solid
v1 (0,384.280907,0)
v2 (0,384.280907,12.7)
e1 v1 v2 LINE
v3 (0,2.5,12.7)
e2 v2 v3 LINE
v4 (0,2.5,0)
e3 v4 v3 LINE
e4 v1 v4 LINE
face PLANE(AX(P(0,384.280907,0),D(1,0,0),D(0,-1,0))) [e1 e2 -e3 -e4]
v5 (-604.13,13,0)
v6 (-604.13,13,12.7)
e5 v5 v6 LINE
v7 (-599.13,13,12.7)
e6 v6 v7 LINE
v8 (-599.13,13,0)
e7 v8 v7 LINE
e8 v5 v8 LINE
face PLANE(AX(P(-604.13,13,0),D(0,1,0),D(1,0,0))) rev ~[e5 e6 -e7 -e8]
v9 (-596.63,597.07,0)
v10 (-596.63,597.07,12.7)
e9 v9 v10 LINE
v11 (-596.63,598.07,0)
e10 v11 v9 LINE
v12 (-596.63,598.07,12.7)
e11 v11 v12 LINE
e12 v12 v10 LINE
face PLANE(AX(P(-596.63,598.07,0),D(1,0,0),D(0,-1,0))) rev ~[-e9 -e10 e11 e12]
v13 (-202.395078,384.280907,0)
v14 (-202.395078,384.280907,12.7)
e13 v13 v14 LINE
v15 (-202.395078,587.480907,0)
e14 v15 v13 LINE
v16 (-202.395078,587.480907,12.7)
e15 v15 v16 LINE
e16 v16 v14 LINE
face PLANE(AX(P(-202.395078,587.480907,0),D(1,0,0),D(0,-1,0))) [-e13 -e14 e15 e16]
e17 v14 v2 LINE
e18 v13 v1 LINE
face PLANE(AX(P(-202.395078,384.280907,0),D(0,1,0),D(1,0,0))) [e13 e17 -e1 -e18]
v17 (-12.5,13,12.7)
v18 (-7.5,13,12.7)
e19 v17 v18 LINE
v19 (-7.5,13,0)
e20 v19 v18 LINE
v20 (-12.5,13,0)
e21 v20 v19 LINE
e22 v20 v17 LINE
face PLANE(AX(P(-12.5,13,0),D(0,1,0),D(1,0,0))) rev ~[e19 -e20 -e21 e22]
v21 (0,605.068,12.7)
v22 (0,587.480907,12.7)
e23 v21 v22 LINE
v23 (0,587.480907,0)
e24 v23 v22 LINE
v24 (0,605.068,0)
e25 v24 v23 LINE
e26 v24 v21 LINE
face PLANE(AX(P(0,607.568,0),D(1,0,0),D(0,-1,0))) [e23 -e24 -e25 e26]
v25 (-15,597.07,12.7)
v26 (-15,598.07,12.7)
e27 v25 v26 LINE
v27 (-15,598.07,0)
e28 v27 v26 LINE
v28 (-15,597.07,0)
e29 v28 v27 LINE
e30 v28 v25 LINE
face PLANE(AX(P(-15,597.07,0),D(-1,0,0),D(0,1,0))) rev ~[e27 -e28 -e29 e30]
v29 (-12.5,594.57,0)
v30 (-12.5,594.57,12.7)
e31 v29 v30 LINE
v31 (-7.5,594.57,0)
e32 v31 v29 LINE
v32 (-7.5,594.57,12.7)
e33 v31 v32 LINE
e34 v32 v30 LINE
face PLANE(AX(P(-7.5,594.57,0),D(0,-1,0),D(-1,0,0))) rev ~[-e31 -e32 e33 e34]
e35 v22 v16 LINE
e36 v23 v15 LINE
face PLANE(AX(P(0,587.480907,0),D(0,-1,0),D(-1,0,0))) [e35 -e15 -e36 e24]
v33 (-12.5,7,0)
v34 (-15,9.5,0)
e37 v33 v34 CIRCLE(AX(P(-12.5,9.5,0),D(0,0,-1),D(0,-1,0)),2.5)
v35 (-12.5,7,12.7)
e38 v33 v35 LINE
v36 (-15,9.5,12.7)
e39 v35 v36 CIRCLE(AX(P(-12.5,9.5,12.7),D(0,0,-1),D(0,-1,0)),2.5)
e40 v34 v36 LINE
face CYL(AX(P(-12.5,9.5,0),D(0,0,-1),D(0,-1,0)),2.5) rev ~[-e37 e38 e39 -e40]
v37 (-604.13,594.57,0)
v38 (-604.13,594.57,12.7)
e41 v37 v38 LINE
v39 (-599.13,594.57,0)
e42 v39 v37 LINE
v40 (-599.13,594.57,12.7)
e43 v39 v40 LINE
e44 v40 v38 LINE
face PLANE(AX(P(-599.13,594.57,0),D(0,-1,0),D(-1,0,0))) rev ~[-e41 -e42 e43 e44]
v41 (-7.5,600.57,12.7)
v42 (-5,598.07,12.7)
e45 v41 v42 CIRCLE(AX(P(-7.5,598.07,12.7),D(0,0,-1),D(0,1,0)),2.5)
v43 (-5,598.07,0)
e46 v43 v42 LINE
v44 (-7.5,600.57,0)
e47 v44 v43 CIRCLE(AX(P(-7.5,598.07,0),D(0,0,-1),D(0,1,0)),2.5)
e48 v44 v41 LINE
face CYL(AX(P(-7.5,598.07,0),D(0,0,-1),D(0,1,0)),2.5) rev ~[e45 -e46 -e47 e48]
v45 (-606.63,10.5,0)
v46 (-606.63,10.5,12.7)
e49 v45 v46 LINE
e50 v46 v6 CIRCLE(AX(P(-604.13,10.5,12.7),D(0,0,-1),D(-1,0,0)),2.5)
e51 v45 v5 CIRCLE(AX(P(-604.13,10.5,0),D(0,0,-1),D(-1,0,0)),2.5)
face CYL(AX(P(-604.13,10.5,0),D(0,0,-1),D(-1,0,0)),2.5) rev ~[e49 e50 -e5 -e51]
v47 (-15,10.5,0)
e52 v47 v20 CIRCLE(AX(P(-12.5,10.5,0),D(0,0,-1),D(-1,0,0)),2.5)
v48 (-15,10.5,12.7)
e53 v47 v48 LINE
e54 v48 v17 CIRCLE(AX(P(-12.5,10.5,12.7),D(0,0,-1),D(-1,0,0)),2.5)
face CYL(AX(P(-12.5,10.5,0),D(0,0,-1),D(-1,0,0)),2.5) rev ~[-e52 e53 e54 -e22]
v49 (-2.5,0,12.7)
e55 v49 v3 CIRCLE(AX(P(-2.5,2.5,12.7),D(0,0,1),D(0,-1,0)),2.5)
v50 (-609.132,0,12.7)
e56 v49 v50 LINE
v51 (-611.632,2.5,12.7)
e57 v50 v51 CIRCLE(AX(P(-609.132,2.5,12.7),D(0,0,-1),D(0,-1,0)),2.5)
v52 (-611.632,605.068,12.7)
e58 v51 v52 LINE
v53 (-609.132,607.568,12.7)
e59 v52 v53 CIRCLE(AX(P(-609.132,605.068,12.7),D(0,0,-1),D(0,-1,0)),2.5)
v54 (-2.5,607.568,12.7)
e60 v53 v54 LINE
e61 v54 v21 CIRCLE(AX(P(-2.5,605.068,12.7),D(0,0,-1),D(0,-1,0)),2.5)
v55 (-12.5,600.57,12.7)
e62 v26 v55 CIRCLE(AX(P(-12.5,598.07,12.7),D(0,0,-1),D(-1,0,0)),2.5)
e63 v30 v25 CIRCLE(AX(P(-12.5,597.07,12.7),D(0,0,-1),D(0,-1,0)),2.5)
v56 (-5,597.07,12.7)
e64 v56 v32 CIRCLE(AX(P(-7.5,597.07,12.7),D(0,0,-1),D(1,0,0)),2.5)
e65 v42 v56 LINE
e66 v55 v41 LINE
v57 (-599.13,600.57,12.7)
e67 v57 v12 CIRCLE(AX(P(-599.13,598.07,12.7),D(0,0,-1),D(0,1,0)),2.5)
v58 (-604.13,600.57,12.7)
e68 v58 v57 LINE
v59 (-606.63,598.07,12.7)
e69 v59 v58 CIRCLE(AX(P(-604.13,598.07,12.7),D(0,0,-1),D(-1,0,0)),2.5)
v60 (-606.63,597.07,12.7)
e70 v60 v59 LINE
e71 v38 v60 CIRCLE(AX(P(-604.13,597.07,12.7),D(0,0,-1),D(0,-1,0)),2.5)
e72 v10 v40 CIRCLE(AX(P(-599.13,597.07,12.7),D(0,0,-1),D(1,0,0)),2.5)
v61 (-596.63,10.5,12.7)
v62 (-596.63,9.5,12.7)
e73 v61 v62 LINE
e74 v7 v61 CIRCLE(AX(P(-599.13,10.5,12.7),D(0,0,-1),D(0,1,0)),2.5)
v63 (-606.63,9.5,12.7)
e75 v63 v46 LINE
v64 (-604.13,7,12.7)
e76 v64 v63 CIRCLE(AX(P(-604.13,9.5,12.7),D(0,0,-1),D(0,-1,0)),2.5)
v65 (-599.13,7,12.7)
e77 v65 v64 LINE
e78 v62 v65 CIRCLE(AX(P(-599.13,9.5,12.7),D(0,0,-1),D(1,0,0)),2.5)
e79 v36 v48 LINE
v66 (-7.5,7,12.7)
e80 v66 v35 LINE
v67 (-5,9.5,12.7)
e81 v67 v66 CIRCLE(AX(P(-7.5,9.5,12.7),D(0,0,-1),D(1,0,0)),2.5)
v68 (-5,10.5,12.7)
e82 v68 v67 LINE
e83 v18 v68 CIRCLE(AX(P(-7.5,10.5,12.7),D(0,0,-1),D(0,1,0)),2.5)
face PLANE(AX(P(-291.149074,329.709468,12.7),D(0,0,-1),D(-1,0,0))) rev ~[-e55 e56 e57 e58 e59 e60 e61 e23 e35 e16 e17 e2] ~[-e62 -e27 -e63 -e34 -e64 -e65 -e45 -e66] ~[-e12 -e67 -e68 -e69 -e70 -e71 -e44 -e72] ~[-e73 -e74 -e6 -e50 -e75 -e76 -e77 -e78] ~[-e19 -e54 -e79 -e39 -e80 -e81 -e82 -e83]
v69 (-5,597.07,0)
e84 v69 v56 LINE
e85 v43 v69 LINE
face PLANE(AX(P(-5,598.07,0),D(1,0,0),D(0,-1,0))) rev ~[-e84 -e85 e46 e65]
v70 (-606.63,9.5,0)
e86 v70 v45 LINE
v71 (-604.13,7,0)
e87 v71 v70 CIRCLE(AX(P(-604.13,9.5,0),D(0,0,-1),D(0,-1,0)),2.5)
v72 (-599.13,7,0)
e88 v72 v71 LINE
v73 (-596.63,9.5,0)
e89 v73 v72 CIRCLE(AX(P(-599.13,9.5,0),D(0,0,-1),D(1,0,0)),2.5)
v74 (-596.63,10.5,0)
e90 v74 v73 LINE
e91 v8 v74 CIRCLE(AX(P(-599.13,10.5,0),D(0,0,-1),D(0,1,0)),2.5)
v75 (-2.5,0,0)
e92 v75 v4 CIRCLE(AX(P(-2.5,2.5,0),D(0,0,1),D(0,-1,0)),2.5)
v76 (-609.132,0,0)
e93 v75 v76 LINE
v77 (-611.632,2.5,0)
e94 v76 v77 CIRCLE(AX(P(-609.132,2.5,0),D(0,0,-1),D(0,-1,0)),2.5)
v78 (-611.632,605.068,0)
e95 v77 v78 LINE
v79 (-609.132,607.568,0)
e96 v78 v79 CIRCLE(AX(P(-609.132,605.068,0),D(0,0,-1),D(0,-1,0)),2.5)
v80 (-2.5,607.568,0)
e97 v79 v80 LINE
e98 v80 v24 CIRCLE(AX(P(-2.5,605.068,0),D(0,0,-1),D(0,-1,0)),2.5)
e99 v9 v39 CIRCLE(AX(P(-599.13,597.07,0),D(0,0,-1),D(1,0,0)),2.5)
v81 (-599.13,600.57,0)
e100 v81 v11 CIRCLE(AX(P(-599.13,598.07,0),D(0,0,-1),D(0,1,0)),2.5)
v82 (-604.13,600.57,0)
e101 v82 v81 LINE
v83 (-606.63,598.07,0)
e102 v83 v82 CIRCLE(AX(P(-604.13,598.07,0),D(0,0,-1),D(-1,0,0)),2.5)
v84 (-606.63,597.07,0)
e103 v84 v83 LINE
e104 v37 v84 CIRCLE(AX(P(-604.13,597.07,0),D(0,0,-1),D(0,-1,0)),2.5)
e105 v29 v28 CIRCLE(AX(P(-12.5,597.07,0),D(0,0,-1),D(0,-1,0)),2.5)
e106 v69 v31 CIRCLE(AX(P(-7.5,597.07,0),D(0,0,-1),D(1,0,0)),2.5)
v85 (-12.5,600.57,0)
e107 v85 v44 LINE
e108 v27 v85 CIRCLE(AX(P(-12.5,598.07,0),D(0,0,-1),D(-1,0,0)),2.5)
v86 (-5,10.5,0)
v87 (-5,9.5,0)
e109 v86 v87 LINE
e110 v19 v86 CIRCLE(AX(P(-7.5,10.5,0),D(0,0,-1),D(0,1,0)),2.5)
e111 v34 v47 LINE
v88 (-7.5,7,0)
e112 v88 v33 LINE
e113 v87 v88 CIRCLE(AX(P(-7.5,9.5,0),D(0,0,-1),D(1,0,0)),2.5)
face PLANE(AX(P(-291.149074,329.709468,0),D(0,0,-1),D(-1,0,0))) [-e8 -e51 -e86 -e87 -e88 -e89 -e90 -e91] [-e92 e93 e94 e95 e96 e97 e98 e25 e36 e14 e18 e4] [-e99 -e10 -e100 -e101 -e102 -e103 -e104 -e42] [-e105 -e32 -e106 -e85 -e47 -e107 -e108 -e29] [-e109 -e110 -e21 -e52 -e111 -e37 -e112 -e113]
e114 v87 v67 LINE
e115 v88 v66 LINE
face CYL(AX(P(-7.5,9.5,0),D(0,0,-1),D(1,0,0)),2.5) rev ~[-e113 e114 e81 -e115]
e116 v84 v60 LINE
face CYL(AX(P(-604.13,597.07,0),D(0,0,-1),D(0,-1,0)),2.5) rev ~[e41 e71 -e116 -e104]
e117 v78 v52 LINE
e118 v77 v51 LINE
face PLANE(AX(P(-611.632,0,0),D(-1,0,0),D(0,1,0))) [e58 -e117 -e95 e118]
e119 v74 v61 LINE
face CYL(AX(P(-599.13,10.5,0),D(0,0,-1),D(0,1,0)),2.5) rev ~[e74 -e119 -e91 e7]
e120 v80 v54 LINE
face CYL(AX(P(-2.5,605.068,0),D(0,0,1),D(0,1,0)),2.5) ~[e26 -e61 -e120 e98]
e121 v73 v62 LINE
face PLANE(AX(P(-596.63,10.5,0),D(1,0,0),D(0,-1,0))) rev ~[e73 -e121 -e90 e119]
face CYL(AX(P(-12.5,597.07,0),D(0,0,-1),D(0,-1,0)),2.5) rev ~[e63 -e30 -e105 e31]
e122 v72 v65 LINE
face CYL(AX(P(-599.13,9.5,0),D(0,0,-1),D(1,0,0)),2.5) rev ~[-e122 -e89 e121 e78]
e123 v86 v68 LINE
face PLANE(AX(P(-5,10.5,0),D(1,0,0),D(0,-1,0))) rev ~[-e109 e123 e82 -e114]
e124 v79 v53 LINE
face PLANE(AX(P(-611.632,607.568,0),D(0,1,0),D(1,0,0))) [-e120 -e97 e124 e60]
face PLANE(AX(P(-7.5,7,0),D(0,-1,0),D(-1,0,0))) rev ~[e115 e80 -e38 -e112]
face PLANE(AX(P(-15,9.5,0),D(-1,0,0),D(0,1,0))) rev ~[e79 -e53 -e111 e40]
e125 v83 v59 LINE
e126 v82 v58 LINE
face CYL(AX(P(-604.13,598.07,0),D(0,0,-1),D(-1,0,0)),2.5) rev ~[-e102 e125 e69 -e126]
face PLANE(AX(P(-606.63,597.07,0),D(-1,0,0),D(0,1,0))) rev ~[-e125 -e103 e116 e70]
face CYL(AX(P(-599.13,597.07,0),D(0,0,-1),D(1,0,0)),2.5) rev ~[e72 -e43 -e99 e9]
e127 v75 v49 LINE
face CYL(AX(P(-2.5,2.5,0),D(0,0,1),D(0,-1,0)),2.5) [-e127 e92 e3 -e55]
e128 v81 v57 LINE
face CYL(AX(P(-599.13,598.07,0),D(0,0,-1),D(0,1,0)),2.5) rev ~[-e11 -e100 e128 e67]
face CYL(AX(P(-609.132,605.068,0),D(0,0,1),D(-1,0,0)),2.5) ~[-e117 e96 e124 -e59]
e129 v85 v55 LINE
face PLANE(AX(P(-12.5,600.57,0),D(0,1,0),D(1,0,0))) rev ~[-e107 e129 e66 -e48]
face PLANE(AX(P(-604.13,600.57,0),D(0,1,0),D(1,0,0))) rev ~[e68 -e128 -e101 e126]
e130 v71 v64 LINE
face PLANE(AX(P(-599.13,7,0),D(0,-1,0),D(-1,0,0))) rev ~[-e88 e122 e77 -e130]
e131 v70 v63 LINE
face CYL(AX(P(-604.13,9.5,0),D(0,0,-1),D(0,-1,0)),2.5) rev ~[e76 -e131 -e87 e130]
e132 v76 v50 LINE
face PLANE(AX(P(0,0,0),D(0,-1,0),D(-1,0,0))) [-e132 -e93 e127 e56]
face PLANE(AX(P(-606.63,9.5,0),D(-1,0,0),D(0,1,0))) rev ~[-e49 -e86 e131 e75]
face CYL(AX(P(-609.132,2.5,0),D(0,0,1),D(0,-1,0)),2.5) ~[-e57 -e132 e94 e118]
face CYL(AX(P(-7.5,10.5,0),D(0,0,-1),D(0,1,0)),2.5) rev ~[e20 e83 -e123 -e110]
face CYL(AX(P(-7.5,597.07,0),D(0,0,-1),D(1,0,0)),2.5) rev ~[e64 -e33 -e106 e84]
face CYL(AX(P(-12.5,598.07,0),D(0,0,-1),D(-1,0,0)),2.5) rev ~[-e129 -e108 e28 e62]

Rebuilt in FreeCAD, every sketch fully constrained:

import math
import FreeCAD as App
import Part
import Sketcher
Q = App.Units.Quantity


def edges_at(feature, points):
    """Names of the edges that pass closest to the given points."""
    edges = feature.Shape.Edges
    near = lambda p: min(range(len(edges)), key=lambda i: edges[i].distToShape(Part.Vertex(*p))[0])
    return sorted({f"Edge{near(p) + 1}" for p in points})


def add_polygon(sketch, points):
    """Adds a closed chain of lines whose ends are joined by coincident constraints."""
    first, n = sketch.GeometryCount, len(points)
    for a, b in zip(points, points[1:] + points[:1]):
        sketch.addGeometry(Part.LineSegment(App.Vector(*a, 0), App.Vector(*b, 0)), False)
    for i in range(n):
        sketch.addConstraint(Sketcher.Constraint("Coincident", first + i, 2, first + (i + 1) % n, 1))

doc = App.newDocument("Part")
body = doc.addObject("PartDesign::Body", "Body")

# Sketch on XY plane
sketch1 = body.newObject("Sketcher::SketchObject", "Sketch")
sketch1.AttachmentSupport = (doc.getObject("XY_Plane"), [""])
sketch1.MapMode = "FlatFace"
add_polygon(sketch1, [(-611.6, 0), (0, 0), (0, 384.3), (-202.4, 384.3), (-202.4, 587.5), (0, 587.5), (0, 607.6), (-611.6, 607.6)])  # lines 0-7
sketch1.addGeometry(Part.LineSegment(App.Vector(-5, 10.5, 0), App.Vector(-5, 9.5, 0)), False)  # 8
sketch1.addGeometry(Part.ArcOfCircle(Part.Circle(App.Vector(-7.5, 9.5, 0), App.Vector(0, 0, 1), 2.5), math.radians(-90), math.radians(0)), False)  # 9
sketch1.addGeometry(Part.LineSegment(App.Vector(-7.5, 7, 0), App.Vector(-12.5, 7, 0)), False)  # 10
sketch1.addGeometry(Part.ArcOfCircle(Part.Circle(App.Vector(-12.5, 9.5, 0), App.Vector(0, 0, 1), 2.5), math.radians(180), math.radians(270)), False)  # 11
sketch1.addGeometry(Part.LineSegment(App.Vector(-15, 9.5, 0), App.Vector(-15, 10.5, 0)), False)  # 12
sketch1.addGeometry(Part.ArcOfCircle(Part.Circle(App.Vector(-12.5, 10.5, 0), App.Vector(0, 0, 1), 2.5), math.radians(90), math.radians(180)), False)  # 13
sketch1.addGeometry(Part.LineSegment(App.Vector(-12.5, 13, 0), App.Vector(-7.5, 13, 0)), False)  # 14
sketch1.addGeometry(Part.ArcOfCircle(Part.Circle(App.Vector(-7.5, 10.5, 0), App.Vector(0, 0, 1), 2.5), math.radians(0), math.radians(90)), False)  # 15
sketch1.addGeometry(Part.LineSegment(App.Vector(-596.6, 10.5, 0), App.Vector(-596.6, 9.5, 0)), False)  # 16
sketch1.addGeometry(Part.ArcOfCircle(Part.Circle(App.Vector(-599.1, 9.5, 0), App.Vector(0, 0, 1), 2.5), math.radians(-90), math.radians(0)), False)  # 17
sketch1.addGeometry(Part.LineSegment(App.Vector(-599.1, 7, 0), App.Vector(-604.1, 7, 0)), False)  # 18
sketch1.addGeometry(Part.ArcOfCircle(Part.Circle(App.Vector(-604.1, 9.5, 0), App.Vector(0, 0, 1), 2.5), math.radians(180), math.radians(270)), False)  # 19
sketch1.addGeometry(Part.LineSegment(App.Vector(-606.6, 9.5, 0), App.Vector(-606.6, 10.5, 0)), False)  # 20
sketch1.addGeometry(Part.ArcOfCircle(Part.Circle(App.Vector(-604.1, 10.5, 0), App.Vector(0, 0, 1), 2.5), math.radians(90), math.radians(180)), False)  # 21
sketch1.addGeometry(Part.LineSegment(App.Vector(-604.1, 13, 0), App.Vector(-599.1, 13, 0)), False)  # 22
sketch1.addGeometry(Part.ArcOfCircle(Part.Circle(App.Vector(-599.1, 10.5, 0), App.Vector(0, 0, 1), 2.5), math.radians(0), math.radians(90)), False)  # 23
sketch1.addGeometry(Part.LineSegment(App.Vector(-5, 598.1, 0), App.Vector(-5, 597.1, 0)), False)  # 24
sketch1.addGeometry(Part.ArcOfCircle(Part.Circle(App.Vector(-7.5, 597.1, 0), App.Vector(0, 0, 1), 2.5), math.radians(-90), math.radians(0)), False)  # 25
sketch1.addGeometry(Part.LineSegment(App.Vector(-7.5, 594.6, 0), App.Vector(-12.5, 594.6, 0)), False)  # 26
sketch1.addGeometry(Part.ArcOfCircle(Part.Circle(App.Vector(-12.5, 597.1, 0), App.Vector(0, 0, 1), 2.5), math.radians(180), math.radians(270)), False)  # 27
sketch1.addGeometry(Part.LineSegment(App.Vector(-15, 597.1, 0), App.Vector(-15, 598.1, 0)), False)  # 28
sketch1.addGeometry(Part.ArcOfCircle(Part.Circle(App.Vector(-12.5, 598.1, 0), App.Vector(0, 0, 1), 2.5), math.radians(90), math.radians(180)), False)  # 29
sketch1.addGeometry(Part.LineSegment(App.Vector(-12.5, 600.6, 0), App.Vector(-7.5, 600.6, 0)), False)  # 30
sketch1.addGeometry(Part.ArcOfCircle(Part.Circle(App.Vector(-7.5, 598.1, 0), App.Vector(0, 0, 1), 2.5), math.radians(0), math.radians(90)), False)  # 31
sketch1.addGeometry(Part.LineSegment(App.Vector(-596.6, 598.1, 0), App.Vector(-596.6, 597.1, 0)), False)  # 32
sketch1.addGeometry(Part.ArcOfCircle(Part.Circle(App.Vector(-599.1, 597.1, 0), App.Vector(0, 0, 1), 2.5), math.radians(-90), math.radians(0)), False)  # 33
sketch1.addGeometry(Part.LineSegment(App.Vector(-599.1, 594.6, 0), App.Vector(-604.1, 594.6, 0)), False)  # 34
sketch1.addGeometry(Part.ArcOfCircle(Part.Circle(App.Vector(-604.1, 597.1, 0), App.Vector(0, 0, 1), 2.5), math.radians(180), math.radians(270)), False)  # 35
sketch1.addGeometry(Part.LineSegment(App.Vector(-606.6, 597.1, 0), App.Vector(-606.6, 598.1, 0)), False)  # 36
sketch1.addGeometry(Part.ArcOfCircle(Part.Circle(App.Vector(-604.1, 598.1, 0), App.Vector(0, 0, 1), 2.5), math.radians(90), math.radians(180)), False)  # 37
sketch1.addGeometry(Part.LineSegment(App.Vector(-604.1, 600.6, 0), App.Vector(-599.1, 600.6, 0)), False)  # 38
sketch1.addGeometry(Part.ArcOfCircle(Part.Circle(App.Vector(-599.1, 598.1, 0), App.Vector(0, 0, 1), 2.5), math.radians(0), math.radians(90)), False)  # 39
sketch1.addConstraint(Sketcher.Constraint("Tangent", 8, 2, 9, 2))
sketch1.addConstraint(Sketcher.Constraint("Tangent", 9, 1, 10, 1))
sketch1.addConstraint(Sketcher.Constraint("Tangent", 10, 2, 11, 2))
sketch1.addConstraint(Sketcher.Constraint("Tangent", 11, 1, 12, 1))
sketch1.addConstraint(Sketcher.Constraint("Tangent", 12, 2, 13, 2))
sketch1.addConstraint(Sketcher.Constraint("Tangent", 13, 1, 14, 1))
sketch1.addConstraint(Sketcher.Constraint("Tangent", 14, 2, 15, 2))
sketch1.addConstraint(Sketcher.Constraint("Tangent", 15, 1, 8, 1))
sketch1.addConstraint(Sketcher.Constraint("Tangent", 16, 2, 17, 2))
sketch1.addConstraint(Sketcher.Constraint("Tangent", 17, 1, 18, 1))
sketch1.addConstraint(Sketcher.Constraint("Tangent", 18, 2, 19, 2))
sketch1.addConstraint(Sketcher.Constraint("Tangent", 19, 1, 20, 1))
sketch1.addConstraint(Sketcher.Constraint("Tangent", 20, 2, 21, 2))
sketch1.addConstraint(Sketcher.Constraint("Tangent", 21, 1, 22, 1))
sketch1.addConstraint(Sketcher.Constraint("Tangent", 22, 2, 23, 2))
sketch1.addConstraint(Sketcher.Constraint("Tangent", 23, 1, 16, 1))
sketch1.addConstraint(Sketcher.Constraint("Tangent", 24, 2, 25, 2))
sketch1.addConstraint(Sketcher.Constraint("Tangent", 25, 1, 26, 1))
sketch1.addConstraint(Sketcher.Constraint("Tangent", 26, 2, 27, 2))
sketch1.addConstraint(Sketcher.Constraint("Tangent", 27, 1, 28, 1))
sketch1.addConstraint(Sketcher.Constraint("Tangent", 28, 2, 29, 2))
sketch1.addConstraint(Sketcher.Constraint("Tangent", 29, 1, 30, 1))
sketch1.addConstraint(Sketcher.Constraint("Tangent", 30, 2, 31, 2))
sketch1.addConstraint(Sketcher.Constraint("Tangent", 31, 1, 24, 1))
sketch1.addConstraint(Sketcher.Constraint("Tangent", 32, 2, 33, 2))
sketch1.addConstraint(Sketcher.Constraint("Tangent", 33, 1, 34, 1))
sketch1.addConstraint(Sketcher.Constraint("Tangent", 34, 2, 35, 2))
sketch1.addConstraint(Sketcher.Constraint("Tangent", 35, 1, 36, 1))
sketch1.addConstraint(Sketcher.Constraint("Tangent", 36, 2, 37, 2))
sketch1.addConstraint(Sketcher.Constraint("Tangent", 37, 1, 38, 1))
sketch1.addConstraint(Sketcher.Constraint("Tangent", 38, 2, 39, 2))
sketch1.addConstraint(Sketcher.Constraint("Tangent", 39, 1, 32, 1))
sketch1.addConstraint(Sketcher.Constraint("Horizontal", 0))
sketch1.addConstraint(Sketcher.Constraint("Vertical", 1))
sketch1.addConstraint(Sketcher.Constraint("Horizontal", 2))
sketch1.addConstraint(Sketcher.Constraint("Vertical", 3))
sketch1.addConstraint(Sketcher.Constraint("Horizontal", 4))
sketch1.addConstraint(Sketcher.Constraint("Vertical", 5))
sketch1.addConstraint(Sketcher.Constraint("Horizontal", 6))
sketch1.addConstraint(Sketcher.Constraint("Vertical", 7))
sketch1.addConstraint(Sketcher.Constraint("Vertical", 8))
sketch1.addConstraint(Sketcher.Constraint("Horizontal", 10))
sketch1.addConstraint(Sketcher.Constraint("Vertical", 12))
sketch1.addConstraint(Sketcher.Constraint("Horizontal", 14))
sketch1.addConstraint(Sketcher.Constraint("Vertical", 16))
sketch1.addConstraint(Sketcher.Constraint("Horizontal", 18))
sketch1.addConstraint(Sketcher.Constraint("Vertical", 20))
sketch1.addConstraint(Sketcher.Constraint("Horizontal", 22))
sketch1.addConstraint(Sketcher.Constraint("Vertical", 24))
sketch1.addConstraint(Sketcher.Constraint("Horizontal", 26))
sketch1.addConstraint(Sketcher.Constraint("Vertical", 28))
sketch1.addConstraint(Sketcher.Constraint("Horizontal", 30))
sketch1.addConstraint(Sketcher.Constraint("Vertical", 32))
sketch1.addConstraint(Sketcher.Constraint("Horizontal", 34))
sketch1.addConstraint(Sketcher.Constraint("Vertical", 36))
sketch1.addConstraint(Sketcher.Constraint("Horizontal", 38))
sketch1.addConstraint(Sketcher.Constraint("Coincident", 0, 2, -1, 1))
sketch1.addConstraint(Sketcher.Constraint("Equal", 9, 11))
sketch1.addConstraint(Sketcher.Constraint("Equal", 11, 13))
sketch1.addConstraint(Sketcher.Constraint("Equal", 13, 15))
sketch1.addConstraint(Sketcher.Constraint("Equal", 15, 17))
sketch1.addConstraint(Sketcher.Constraint("Equal", 17, 19))
sketch1.addConstraint(Sketcher.Constraint("Equal", 19, 21))
sketch1.addConstraint(Sketcher.Constraint("Equal", 21, 23))
sketch1.addConstraint(Sketcher.Constraint("Equal", 23, 25))
sketch1.addConstraint(Sketcher.Constraint("Equal", 25, 27))
sketch1.addConstraint(Sketcher.Constraint("Equal", 27, 29))
sketch1.addConstraint(Sketcher.Constraint("Equal", 29, 31))
sketch1.addConstraint(Sketcher.Constraint("Equal", 31, 33))
sketch1.addConstraint(Sketcher.Constraint("Equal", 33, 35))
sketch1.addConstraint(Sketcher.Constraint("Equal", 35, 37))
sketch1.addConstraint(Sketcher.Constraint("Equal", 37, 39))
sketch1.addConstraint(Sketcher.Constraint("PointOnObject", 4, 2, -2))
sketch1.addConstraint(Sketcher.Constraint("Horizontal", 11, 3, 17, 3))
sketch1.addConstraint(Sketcher.Constraint("Horizontal", 15, 3, 21, 3))
sketch1.addConstraint(Sketcher.Constraint("Horizontal", 27, 3, 33, 3))
sketch1.addConstraint(Sketcher.Constraint("Horizontal", 31, 3, 37, 3))
sketch1.addConstraint(Sketcher.Constraint("Vertical", 15, 3, 25, 3))
sketch1.addConstraint(Sketcher.Constraint("Vertical", 13, 3, 27, 3))
sketch1.addConstraint(Sketcher.Constraint("Vertical", 23, 3, 33, 3))
sketch1.addConstraint(Sketcher.Constraint("Vertical", 21, 3, 35, 3))
sketch1.addConstraint(Sketcher.Constraint("Equal", 14, 18))
sketch1.addConstraint(Sketcher.Constraint("Equal", 20, 24))
sketch1.addConstraint(Sketcher.Constraint("DistanceY", 3, 1, 3, 2, Q("8 in")))
sketch1.addConstraint(Sketcher.Constraint("DistanceX", 0, 1, 0, 2, Q("24.08 in")))
sketch1.addConstraint(Sketcher.Constraint("DistanceY", 7, 2, 7, 1, Q("23.92 in")))
sketch1.addConstraint(Sketcher.Constraint("Radius", 9, Q("2.5 mm")))
sketch1.addConstraint(Sketcher.Constraint("DistanceX", 10, 2, 10, 1, Q("5 mm")))
sketch1.addConstraint(Sketcher.Constraint("DistanceY", 8, 2, 8, 1, Q("1 mm")))
sketch1.addConstraint(Sketcher.Constraint("DistanceX", 2, 2, 2, 1, Q("202.395078 mm")))
sketch1.addConstraint(Sketcher.Constraint("DistanceX", 9, 3, -1, 1, Q("7.5 mm")))
sketch1.addConstraint(Sketcher.Constraint("DistanceY", -1, 1, 9, 3, Q("9.5 mm")))
sketch1.addConstraint(Sketcher.Constraint("DistanceX", 17, 3, -1, 1, Q("599.13 mm")))
sketch1.addConstraint(Sketcher.Constraint("DistanceY", -1, 1, 25, 3, Q("597.07 mm")))
sketch1.addConstraint(Sketcher.Constraint("DistanceY", 1, 1, 1, 2, Q("384.280907 mm")))
pad1 = body.newObject("PartDesign::Pad", "Pad")
pad1.Profile = sketch1
pad1.Length = Q("0.5 in")
doc.recompute()

fillet = body.newObject("PartDesign::Fillet", "Fillet")
fillet.Base = (pad1, edges_at(pad1, [
    (0, 0, 6.35),
    (-611.632, 0, 6.35),
    (-611.632, 607.568, 6.35),
    (0, 607.568, 6.35),
]))
fillet.Radius = 2.5

doc.recompute()
